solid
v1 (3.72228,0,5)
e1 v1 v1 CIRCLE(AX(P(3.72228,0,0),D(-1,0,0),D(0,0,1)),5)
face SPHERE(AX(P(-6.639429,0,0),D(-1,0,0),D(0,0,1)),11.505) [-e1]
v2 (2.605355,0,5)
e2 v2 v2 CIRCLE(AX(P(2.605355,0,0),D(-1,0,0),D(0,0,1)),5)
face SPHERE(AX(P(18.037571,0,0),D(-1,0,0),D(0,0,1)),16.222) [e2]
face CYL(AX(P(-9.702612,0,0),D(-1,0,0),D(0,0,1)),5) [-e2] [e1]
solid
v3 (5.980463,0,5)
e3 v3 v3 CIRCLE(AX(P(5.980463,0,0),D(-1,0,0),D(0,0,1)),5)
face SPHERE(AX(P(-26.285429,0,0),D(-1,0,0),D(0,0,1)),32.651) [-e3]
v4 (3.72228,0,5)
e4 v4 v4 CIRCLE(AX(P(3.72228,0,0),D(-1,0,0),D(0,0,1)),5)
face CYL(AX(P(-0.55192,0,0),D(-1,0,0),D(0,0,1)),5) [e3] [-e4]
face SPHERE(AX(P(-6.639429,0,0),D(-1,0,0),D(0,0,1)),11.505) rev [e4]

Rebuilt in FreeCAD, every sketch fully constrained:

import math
import FreeCAD as App
import Part
import Sketcher
from FreeCAD import Vector

doc = App.newDocument("Part")
body = doc.addObject("PartDesign::Body", "Body")

# Sketch on XZ plane
sketch1 = doc.addObject("Sketcher::SketchObject", "Sketch")
body.addObject(sketch1)
sketch1.AttachmentSupport = (doc.XZ_Plane, [""])
sketch1.MapMode = "FlatFace"
sketch1.addGeometry(Part.ArcOfCircle(Part.Circle(Vector(18, 0, 0), Vector(0, 0, 1), 16.2), math.radians(-180), math.radians(-162.05)), False)
sketch1.addGeometry(Part.LineSegment(Vector(1.8, 0, 0), Vector(4.9, 0, 0)), False)
sketch1.addGeometry(Part.ArcOfCircle(Part.Circle(Vector(-6.6, 0, 0), Vector(0, 0, 1), 11.5), math.radians(-26), math.radians(0)), False)
sketch1.addGeometry(Part.LineSegment(Vector(3.7, -5, 0), Vector(2.6, -5, 0)), False)
sketch1.addConstraint(Sketcher.Constraint("Coincident", 0, 1, 1, 1))
sketch1.addConstraint(Sketcher.Constraint("Coincident", 1, 2, 2, 2))
sketch1.addConstraint(Sketcher.Constraint("Coincident", 2, 1, 3, 1))
sketch1.addConstraint(Sketcher.Constraint("Coincident", 3, 2, 0, 2))
sketch1.addConstraint(Sketcher.Constraint("Horizontal", 1))
sketch1.addConstraint(Sketcher.Constraint("Horizontal", 3))
sketch1.addConstraint(Sketcher.Constraint("PointOnObject", 0, 3, -1))
sketch1.addConstraint(Sketcher.Constraint("PointOnObject", 2, 3, -1))
sketch1.addConstraint(Sketcher.Constraint("PointOnObject", 0, 1, -1))
sketch1.addConstraint(Sketcher.Constraint("DistanceY", 2, 1, -1, 1, 5.0))
sketch1.addConstraint(Sketcher.Constraint("Radius", 0, 16.222))
sketch1.addConstraint(Sketcher.Constraint("Radius", 2, 11.505))
sketch1.addConstraint(Sketcher.Constraint("DistanceX", 1, 1, 1, 2, 3.05))
sketch1.addConstraint(Sketcher.Constraint("DistanceX", -1, 1, 0, 3, 18.037571))
revolution = doc.addObject("PartDesign::Revolution", "Revolution")
body.addObject(revolution)
revolution.Profile = sketch1
revolution.ReferenceAxis = (sketch1, ["H_Axis"])
revolution.Angle = 360
body2 = doc.addObject("PartDesign::Body", "Body001")

# Sketch on XZ plane
sketch2 = doc.addObject("Sketcher::SketchObject", "Sketch001")
body2.addObject(sketch2)
sketch2.AttachmentSupport = (doc.getObject("XZ_Plane001"), [""])
sketch2.MapMode = "FlatFace"
sketch2.addGeometry(Part.LineSegment(Vector(6, -5, 0), Vector(3.7, -5, 0)), False)
sketch2.addGeometry(Part.ArcOfCircle(Part.Circle(Vector(-6.6, 0, 0), Vector(0, 0, 1), 11.5), math.radians(-26), math.radians(0)), False)
sketch2.addGeometry(Part.LineSegment(Vector(4.9, 0, 0), Vector(6.4, 0, 0)), False)
sketch2.addGeometry(Part.ArcOfCircle(Part.Circle(Vector(-26.3, 0, 0), Vector(0, 0, 1), 32.7), math.radians(-8.81), math.radians(0)), False)
sketch2.addConstraint(Sketcher.Constraint("Coincident", 0, 2, 1, 1))
sketch2.addConstraint(Sketcher.Constraint("Coincident", 1, 2, 2, 1))
sketch2.addConstraint(Sketcher.Constraint("Coincident", 2, 2, 3, 2))
sketch2.addConstraint(Sketcher.Constraint("Coincident", 3, 1, 0, 1))
sketch2.addConstraint(Sketcher.Constraint("Horizontal", 0))
sketch2.addConstraint(Sketcher.Constraint("Horizontal", 2))
sketch2.addConstraint(Sketcher.Constraint("PointOnObject", 1, 3, -1))
sketch2.addConstraint(Sketcher.Constraint("PointOnObject", 3, 3, -1))
sketch2.addConstraint(Sketcher.Constraint("PointOnObject", 1, 2, -1))
sketch2.addConstraint(Sketcher.Constraint("DistanceX", 2, 1, 2, 2, 1.5))
sketch2.addConstraint(Sketcher.Constraint("DistanceY", 0, 2, -1, 1, 5.0))
sketch2.addConstraint(Sketcher.Constraint("Radius", 1, 11.505))
sketch2.addConstraint(Sketcher.Constraint("Radius", 3, 32.651))
sketch2.addConstraint(Sketcher.Constraint("DistanceX", 1, 3, -1, 1, 6.639429))
revolution2 = doc.addObject("PartDesign::Revolution", "Revolution001")
body2.addObject(revolution2)
revolution2.Profile = sketch2
revolution2.ReferenceAxis = (sketch2, ["H_Axis"])
revolution2.Angle = 360

doc.recompute()
